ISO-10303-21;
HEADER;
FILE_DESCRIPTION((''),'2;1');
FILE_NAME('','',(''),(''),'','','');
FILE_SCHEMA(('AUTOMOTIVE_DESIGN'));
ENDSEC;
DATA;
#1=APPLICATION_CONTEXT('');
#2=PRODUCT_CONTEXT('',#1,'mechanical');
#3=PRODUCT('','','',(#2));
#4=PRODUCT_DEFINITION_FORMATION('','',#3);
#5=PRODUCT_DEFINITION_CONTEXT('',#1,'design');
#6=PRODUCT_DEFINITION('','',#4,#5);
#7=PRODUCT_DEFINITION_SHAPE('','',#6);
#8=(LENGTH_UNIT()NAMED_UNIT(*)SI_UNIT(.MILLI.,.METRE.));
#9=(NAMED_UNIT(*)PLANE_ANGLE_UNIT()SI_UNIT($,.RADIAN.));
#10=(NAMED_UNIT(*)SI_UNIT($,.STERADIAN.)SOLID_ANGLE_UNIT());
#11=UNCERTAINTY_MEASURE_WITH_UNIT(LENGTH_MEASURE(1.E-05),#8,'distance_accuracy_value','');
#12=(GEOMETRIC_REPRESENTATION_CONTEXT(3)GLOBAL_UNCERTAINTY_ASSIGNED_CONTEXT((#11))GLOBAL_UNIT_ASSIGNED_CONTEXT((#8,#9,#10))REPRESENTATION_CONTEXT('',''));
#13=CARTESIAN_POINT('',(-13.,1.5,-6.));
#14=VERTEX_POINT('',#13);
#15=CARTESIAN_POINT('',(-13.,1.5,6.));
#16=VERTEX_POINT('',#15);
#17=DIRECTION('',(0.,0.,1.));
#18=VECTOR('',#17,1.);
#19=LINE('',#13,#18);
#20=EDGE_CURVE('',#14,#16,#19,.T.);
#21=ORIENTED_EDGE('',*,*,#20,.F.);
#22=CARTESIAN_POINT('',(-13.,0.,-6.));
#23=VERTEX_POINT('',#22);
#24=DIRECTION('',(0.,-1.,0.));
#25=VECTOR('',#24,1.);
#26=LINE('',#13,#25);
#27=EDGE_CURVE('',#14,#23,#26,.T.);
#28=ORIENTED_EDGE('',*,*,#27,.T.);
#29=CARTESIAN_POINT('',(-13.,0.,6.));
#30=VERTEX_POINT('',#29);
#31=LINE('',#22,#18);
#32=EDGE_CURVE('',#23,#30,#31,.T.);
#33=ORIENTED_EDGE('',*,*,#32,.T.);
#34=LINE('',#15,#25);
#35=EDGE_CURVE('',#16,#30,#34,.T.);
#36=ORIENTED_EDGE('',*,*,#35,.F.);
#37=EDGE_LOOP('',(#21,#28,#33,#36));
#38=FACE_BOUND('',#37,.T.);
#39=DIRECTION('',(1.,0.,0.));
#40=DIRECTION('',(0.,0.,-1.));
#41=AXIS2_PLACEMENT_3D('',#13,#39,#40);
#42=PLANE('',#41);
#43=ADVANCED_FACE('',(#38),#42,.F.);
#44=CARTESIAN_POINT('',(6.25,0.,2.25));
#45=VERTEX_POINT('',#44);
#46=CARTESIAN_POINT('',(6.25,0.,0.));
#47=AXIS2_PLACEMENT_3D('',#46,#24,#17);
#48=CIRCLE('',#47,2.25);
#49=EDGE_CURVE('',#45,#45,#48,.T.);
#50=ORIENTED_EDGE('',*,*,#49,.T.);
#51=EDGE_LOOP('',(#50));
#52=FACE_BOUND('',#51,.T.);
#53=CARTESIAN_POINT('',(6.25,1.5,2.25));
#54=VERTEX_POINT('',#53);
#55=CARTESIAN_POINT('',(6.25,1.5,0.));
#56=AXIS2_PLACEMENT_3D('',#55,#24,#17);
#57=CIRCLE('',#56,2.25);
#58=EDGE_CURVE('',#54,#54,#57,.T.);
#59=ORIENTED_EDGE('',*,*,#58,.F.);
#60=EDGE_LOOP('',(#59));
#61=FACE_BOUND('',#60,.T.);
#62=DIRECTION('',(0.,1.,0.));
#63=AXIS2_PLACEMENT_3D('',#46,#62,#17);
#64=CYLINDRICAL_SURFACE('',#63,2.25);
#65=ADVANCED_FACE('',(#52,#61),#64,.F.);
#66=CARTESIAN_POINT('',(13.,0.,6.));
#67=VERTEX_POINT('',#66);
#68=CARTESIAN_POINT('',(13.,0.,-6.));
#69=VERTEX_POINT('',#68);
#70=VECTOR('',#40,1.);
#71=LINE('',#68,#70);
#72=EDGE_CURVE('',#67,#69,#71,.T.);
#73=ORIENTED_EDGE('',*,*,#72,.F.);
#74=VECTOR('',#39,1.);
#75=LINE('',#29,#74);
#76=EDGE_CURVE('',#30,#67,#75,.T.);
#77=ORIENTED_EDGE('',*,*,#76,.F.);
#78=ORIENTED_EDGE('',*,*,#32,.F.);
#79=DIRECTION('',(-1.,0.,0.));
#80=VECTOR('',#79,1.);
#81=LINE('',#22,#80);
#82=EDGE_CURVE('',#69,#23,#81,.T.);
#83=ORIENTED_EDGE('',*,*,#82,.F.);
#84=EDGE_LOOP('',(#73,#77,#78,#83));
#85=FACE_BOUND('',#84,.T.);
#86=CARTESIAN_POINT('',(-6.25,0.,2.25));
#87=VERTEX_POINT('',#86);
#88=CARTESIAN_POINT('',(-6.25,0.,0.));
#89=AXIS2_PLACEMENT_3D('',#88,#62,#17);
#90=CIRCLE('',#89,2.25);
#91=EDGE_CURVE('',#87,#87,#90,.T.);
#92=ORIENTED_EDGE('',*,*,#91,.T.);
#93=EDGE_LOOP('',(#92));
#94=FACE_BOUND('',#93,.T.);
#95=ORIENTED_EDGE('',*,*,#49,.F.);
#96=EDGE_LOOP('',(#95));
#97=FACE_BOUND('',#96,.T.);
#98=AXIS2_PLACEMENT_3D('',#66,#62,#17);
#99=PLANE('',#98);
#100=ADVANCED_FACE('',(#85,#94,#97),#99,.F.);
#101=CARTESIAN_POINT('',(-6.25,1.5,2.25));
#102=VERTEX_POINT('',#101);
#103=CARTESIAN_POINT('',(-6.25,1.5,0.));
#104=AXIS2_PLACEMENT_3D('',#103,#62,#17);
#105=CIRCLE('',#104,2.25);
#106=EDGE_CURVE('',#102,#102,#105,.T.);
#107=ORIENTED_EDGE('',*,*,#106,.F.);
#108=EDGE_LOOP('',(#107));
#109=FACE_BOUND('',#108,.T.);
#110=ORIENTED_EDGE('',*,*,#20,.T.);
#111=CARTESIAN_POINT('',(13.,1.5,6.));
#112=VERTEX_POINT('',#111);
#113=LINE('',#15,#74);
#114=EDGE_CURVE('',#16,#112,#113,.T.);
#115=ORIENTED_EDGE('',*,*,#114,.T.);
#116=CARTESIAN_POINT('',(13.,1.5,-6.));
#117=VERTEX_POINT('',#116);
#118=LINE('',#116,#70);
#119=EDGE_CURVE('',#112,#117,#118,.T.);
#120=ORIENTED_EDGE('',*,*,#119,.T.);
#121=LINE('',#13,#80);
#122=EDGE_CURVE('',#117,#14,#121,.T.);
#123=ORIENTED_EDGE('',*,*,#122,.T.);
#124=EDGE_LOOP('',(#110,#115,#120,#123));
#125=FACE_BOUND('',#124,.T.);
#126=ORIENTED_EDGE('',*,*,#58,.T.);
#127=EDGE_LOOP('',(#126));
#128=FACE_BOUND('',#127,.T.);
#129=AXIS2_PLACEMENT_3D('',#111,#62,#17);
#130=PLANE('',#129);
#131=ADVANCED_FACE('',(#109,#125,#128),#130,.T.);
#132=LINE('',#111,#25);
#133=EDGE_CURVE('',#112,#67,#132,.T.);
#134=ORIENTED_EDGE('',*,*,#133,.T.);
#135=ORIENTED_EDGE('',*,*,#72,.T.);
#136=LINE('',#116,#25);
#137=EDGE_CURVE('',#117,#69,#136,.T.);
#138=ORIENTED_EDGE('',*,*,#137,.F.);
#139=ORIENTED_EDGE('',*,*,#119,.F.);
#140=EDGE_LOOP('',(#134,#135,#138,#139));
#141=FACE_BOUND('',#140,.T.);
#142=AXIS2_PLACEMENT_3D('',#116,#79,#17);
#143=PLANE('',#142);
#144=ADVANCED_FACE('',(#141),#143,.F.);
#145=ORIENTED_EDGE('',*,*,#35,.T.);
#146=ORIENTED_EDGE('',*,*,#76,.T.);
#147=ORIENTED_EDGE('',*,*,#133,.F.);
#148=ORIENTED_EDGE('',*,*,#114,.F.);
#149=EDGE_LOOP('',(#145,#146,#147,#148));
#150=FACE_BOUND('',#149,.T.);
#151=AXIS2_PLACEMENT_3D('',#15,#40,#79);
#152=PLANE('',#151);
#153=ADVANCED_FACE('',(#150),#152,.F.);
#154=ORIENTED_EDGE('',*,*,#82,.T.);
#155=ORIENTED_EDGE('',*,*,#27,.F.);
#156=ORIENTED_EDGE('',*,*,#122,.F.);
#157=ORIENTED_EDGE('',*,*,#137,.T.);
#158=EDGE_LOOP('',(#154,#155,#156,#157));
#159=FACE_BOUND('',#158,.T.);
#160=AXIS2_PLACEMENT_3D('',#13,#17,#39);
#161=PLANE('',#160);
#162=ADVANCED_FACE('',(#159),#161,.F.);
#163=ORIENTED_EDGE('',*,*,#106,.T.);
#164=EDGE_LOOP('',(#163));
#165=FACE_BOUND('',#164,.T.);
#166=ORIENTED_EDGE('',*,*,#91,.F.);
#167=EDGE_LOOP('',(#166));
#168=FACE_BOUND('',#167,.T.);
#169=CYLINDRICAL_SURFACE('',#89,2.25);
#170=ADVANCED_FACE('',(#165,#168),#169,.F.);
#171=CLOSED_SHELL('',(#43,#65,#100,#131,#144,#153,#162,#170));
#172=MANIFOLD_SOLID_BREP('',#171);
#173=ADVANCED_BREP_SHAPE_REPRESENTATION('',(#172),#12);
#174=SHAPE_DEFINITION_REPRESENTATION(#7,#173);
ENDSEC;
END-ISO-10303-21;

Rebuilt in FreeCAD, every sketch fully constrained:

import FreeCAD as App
import Part
import Sketcher
from FreeCAD import Vector

doc = App.newDocument("Part")
body = doc.addObject("PartDesign::Body", "Body")

# Sketch on XZ plane
sketch1 = body.newObject("Sketcher::SketchObject", "Sketch")
sketch1.AttachmentSupport = (doc.getObject("XZ_Plane"), [""])
sketch1.MapMode = "FlatFace"
sketch1.addGeometry([
    Part.LineSegment(Vector(-13, -6, 0), Vector(-13, 6, 0)),
    Part.LineSegment(Vector(-13, 6, 0), Vector(13, 6, 0)),
    Part.LineSegment(Vector(13, 6, 0), Vector(13, -6, 0)),
    Part.LineSegment(Vector(13, -6, 0), Vector(-13, -6, 0)),
], False)
sketch1.addConstraint([
    Sketcher.Constraint("Coincident", 0, 2, 1, 1),
    Sketcher.Constraint("Coincident", 1, 2, 2, 1),
    Sketcher.Constraint("Coincident", 2, 2, 3, 1),
    Sketcher.Constraint("Coincident", 3, 2, 0, 1),
    Sketcher.Constraint("Vertical", 0),
    Sketcher.Constraint("Horizontal", 1),
    Sketcher.Constraint("Vertical", 2),
    Sketcher.Constraint("Horizontal", 3),
    Sketcher.Constraint("Symmetric", 0, 2, 2, 2, -1, 1),
    Sketcher.Constraint("DistanceX", 1, 1, 1, 2, 26.0),
    Sketcher.Constraint("DistanceY", 0, 1, 0, 2, 12.0),
])
pad1 = body.newObject("PartDesign::Pad", "Pad")
pad1.Profile = sketch1
pad1.Length = 1.5
pad1.Reversed = True

# Sketch on XZ plane
sketch2 = body.newObject("Sketcher::SketchObject", "Sketch001")
sketch2.AttachmentSupport = (doc.getObject("XZ_Plane"), [""])
sketch2.MapMode = "FlatFace"
sketch2.AttachmentOffset = App.Placement(Vector(0, 0, -1.5), App.Rotation())
sketch2.addGeometry(Part.Circle(Vector(-6.2, 0, 0), Vector(0, 0, 1), 2.2), False)
sketch2.addConstraint([
    Sketcher.Constraint("PointOnObject", 0, 3, -1),
    Sketcher.Constraint("Diameter", 0, 4.5),
    Sketcher.Constraint("DistanceX", 0, 3, -1, 1, 6.25),
])
pocket1 = body.newObject("PartDesign::Pocket", "Pocket")
pocket1.Profile = sketch2
pocket1.Type = "ThroughAll"
pocket1.Reversed = True
doc.recompute()

mirrored = body.newObject("PartDesign::Mirrored", "Mirrored")
mirrored.Originals = [pocket1]
mirrored.MirrorPlane = (doc.getObject("YZ_Plane"), [""])
body.Tip = mirrored

doc.recompute()
